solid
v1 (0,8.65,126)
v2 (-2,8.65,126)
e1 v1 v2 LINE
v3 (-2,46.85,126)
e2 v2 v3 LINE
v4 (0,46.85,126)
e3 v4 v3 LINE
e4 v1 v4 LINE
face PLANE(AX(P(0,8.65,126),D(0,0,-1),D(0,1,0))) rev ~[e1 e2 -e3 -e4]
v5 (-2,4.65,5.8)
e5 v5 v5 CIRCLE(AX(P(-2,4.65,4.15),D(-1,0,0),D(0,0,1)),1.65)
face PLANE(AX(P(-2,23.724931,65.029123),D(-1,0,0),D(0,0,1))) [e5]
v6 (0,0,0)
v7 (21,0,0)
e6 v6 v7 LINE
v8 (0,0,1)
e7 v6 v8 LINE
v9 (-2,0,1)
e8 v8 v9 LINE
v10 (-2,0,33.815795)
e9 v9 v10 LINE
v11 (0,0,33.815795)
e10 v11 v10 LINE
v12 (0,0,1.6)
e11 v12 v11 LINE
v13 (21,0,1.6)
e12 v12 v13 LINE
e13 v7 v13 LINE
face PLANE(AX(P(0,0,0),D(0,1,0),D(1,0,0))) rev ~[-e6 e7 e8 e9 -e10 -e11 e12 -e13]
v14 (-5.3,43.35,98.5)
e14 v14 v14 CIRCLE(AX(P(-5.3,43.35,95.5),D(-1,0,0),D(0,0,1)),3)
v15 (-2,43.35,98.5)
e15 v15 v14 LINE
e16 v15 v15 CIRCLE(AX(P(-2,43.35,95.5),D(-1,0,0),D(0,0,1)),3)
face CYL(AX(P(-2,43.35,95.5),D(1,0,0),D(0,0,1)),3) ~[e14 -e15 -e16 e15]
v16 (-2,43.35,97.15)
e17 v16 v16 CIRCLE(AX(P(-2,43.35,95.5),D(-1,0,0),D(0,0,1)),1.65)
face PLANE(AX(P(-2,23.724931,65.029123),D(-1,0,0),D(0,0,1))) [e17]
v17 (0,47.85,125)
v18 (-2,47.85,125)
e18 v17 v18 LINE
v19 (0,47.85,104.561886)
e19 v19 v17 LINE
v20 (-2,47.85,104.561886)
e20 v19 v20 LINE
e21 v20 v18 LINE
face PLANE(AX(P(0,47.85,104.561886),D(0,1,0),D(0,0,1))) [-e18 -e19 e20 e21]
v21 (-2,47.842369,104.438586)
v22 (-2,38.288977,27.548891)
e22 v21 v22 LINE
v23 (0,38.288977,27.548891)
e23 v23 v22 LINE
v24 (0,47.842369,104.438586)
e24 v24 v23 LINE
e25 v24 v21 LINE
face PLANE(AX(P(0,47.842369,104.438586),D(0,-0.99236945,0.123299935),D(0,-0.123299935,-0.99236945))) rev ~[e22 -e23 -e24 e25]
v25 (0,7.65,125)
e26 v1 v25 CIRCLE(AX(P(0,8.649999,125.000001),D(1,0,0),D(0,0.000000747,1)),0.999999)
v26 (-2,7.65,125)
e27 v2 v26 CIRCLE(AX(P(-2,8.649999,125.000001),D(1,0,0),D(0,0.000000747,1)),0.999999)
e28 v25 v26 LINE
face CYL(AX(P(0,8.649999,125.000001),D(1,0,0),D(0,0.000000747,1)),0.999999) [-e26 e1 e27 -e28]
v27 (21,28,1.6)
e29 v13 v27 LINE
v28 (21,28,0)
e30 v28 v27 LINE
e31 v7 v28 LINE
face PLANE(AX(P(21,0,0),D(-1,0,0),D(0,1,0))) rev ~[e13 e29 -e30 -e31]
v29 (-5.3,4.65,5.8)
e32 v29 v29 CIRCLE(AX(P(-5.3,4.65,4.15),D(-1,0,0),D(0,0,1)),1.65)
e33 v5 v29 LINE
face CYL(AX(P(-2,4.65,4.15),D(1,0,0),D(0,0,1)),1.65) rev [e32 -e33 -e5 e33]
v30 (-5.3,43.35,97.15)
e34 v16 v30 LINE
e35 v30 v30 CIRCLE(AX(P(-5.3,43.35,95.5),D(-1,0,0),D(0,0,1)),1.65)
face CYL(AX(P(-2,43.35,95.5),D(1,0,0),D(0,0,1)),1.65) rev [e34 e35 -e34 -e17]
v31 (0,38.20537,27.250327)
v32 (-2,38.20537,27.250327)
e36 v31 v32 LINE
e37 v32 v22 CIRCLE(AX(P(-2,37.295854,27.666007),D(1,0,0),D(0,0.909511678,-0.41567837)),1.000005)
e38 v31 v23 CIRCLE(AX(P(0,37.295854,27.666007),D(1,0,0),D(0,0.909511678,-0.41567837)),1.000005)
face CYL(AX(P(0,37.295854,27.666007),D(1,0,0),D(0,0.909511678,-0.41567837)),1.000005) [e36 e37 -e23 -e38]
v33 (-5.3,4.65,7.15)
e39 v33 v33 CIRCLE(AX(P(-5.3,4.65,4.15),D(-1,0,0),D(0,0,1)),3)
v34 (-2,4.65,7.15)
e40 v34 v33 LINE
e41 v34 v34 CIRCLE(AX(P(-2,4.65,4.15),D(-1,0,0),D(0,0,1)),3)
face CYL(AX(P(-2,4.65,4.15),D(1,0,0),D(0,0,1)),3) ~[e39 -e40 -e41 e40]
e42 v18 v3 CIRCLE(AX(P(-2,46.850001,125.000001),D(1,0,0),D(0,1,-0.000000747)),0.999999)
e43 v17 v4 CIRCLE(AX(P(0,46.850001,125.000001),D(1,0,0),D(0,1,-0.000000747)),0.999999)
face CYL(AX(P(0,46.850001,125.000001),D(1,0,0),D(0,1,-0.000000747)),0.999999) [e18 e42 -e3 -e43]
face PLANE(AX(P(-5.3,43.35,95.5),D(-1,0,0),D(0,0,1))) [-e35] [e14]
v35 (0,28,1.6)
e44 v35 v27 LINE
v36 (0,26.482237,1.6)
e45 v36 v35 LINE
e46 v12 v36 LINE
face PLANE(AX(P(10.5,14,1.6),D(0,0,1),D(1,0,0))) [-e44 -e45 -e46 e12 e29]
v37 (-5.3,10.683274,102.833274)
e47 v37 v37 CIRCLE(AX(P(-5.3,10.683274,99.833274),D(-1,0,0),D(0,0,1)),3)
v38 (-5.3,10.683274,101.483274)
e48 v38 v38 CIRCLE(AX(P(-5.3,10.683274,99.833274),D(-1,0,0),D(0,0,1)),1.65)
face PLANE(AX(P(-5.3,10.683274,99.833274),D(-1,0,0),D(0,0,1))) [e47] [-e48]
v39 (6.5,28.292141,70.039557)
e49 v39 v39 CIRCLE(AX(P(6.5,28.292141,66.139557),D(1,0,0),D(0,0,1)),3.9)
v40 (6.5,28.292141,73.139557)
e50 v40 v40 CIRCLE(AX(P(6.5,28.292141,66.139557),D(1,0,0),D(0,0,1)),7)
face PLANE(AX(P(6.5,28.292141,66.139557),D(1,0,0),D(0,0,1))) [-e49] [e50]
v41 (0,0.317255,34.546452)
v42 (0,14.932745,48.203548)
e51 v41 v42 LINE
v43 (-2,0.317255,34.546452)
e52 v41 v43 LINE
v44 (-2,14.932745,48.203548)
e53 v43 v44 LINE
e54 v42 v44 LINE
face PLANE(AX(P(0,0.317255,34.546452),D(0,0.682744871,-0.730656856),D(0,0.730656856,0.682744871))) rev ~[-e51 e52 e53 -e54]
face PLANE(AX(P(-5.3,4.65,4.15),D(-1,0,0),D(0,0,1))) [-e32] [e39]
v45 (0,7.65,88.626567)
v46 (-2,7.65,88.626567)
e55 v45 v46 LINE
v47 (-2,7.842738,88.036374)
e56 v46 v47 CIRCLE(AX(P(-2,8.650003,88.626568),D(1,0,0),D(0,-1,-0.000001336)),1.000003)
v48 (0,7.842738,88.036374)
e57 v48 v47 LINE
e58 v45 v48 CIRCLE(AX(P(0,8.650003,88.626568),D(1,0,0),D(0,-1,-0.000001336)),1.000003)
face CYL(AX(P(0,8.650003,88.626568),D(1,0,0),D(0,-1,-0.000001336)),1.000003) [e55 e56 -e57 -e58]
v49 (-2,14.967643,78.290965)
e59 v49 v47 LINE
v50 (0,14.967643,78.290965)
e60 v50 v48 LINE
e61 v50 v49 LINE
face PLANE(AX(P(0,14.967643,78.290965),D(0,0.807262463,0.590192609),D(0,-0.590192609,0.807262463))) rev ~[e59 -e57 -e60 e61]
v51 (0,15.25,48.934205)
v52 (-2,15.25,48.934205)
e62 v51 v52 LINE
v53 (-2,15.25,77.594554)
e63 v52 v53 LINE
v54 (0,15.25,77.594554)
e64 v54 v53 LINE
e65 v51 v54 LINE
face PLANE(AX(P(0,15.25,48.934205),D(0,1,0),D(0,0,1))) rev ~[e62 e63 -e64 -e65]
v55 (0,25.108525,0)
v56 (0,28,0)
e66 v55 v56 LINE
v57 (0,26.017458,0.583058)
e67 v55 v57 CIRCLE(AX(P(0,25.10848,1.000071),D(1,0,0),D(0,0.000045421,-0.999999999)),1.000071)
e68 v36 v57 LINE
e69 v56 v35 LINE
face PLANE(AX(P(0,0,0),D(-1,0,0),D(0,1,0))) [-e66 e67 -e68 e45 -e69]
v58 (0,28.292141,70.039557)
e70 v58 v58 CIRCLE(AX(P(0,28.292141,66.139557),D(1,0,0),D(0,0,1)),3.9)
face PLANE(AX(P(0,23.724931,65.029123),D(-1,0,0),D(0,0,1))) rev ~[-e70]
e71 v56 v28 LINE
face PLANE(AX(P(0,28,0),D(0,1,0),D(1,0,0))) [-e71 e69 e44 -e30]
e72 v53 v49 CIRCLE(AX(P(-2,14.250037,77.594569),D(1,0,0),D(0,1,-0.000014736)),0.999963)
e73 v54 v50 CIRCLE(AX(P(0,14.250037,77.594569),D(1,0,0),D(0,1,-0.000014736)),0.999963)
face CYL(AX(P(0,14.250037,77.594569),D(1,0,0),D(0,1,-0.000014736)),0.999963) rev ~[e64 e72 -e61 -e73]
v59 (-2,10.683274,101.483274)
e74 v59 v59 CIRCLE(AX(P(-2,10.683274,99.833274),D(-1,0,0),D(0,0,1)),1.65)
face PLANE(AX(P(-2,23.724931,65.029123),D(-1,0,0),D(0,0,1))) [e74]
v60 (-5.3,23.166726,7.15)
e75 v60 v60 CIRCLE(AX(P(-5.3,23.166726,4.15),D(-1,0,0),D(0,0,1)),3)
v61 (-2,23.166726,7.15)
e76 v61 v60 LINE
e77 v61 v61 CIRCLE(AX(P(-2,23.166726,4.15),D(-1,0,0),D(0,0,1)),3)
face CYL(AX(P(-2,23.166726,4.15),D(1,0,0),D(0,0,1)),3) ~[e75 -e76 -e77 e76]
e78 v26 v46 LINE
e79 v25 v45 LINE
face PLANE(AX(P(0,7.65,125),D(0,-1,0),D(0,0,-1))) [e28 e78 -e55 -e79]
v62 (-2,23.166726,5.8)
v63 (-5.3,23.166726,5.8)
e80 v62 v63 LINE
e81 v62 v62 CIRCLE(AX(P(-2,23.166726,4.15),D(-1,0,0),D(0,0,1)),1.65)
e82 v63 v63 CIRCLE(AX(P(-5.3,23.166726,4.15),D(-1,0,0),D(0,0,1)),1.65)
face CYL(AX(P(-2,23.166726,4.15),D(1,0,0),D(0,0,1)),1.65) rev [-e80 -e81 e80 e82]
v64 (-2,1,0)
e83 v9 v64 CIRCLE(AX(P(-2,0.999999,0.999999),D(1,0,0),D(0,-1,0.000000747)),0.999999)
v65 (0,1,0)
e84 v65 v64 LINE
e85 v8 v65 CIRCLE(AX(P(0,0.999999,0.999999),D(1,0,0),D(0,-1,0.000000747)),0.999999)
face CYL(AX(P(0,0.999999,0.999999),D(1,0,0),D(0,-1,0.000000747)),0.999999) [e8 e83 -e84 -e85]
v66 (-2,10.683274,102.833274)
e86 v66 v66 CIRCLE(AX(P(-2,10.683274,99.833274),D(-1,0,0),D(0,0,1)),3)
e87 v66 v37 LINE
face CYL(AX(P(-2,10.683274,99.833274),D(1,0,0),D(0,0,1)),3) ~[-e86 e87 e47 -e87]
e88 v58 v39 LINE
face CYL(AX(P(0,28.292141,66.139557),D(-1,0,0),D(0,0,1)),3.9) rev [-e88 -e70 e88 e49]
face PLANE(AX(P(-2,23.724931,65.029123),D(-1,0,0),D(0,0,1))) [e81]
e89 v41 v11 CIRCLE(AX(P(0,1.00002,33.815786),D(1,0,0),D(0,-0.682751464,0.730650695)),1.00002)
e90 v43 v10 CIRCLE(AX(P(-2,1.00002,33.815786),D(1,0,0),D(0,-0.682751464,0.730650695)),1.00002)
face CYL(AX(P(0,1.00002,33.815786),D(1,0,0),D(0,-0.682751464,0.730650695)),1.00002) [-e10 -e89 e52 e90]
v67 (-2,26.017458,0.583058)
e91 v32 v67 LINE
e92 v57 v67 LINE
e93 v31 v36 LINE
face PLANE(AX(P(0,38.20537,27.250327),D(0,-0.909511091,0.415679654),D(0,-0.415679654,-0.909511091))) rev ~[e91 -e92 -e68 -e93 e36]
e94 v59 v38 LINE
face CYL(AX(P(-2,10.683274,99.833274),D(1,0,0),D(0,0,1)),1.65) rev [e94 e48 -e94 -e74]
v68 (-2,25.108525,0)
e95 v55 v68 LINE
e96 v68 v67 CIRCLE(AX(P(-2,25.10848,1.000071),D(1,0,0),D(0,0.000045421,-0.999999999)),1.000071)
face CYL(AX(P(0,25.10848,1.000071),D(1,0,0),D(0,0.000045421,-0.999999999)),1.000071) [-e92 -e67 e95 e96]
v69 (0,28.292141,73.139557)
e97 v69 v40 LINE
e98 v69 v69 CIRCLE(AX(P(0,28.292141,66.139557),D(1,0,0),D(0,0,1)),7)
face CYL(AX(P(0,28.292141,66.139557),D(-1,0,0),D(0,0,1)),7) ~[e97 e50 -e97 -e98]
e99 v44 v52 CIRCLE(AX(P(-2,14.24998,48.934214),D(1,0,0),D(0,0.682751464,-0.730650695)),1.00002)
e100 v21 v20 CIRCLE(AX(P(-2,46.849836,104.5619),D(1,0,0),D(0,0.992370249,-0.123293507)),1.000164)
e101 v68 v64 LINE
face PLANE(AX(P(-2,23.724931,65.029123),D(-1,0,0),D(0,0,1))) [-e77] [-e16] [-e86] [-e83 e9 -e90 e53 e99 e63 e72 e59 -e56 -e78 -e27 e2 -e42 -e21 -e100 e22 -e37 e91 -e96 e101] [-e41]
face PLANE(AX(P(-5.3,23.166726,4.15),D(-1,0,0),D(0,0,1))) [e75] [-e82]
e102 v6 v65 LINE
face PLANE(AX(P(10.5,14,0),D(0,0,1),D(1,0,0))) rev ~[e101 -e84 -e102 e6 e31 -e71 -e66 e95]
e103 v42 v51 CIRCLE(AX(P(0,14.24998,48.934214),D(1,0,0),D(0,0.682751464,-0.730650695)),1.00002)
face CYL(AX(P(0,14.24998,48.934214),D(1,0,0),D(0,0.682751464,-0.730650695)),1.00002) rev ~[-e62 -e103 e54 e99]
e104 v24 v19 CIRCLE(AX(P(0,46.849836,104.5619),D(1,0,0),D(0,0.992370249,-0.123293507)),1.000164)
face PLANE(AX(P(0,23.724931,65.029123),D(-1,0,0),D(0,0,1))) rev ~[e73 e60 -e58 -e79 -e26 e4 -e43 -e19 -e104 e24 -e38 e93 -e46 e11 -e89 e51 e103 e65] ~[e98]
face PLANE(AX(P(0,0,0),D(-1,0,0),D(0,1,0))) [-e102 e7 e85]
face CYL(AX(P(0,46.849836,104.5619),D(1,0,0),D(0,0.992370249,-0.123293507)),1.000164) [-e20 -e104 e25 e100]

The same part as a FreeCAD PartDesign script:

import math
import FreeCAD as App
import Part
import Sketcher
Q = App.Units.Quantity

doc = App.newDocument("Part")
params = doc.addObject("Spreadsheet::Sheet", "Params")
for row, (alias, value) in enumerate([
    ("sketch1_radius", "0.999999 mm"),
    ("sketch1_width", "38.2 mm"),
    ("pad1_length", "2 mm"),
    ("sketch2_diameter", "6 mm"),
    ("sketch2_diameter2", "3.3 mm"),
    ("pad2_length", "3.3 mm"),
    ("sketch3_width", "21 mm"),
    ("sketch3_height", "28 mm"),
    ("pad3_length", "1.6 mm"),
    ("sketch4_diameter", "14 mm"),
    ("sketch4_diameter2", "7.8 mm"),
    ("pad4_length", "6.5 mm"),
], start=1):
    params.set(f"A{row}", alias)
    params.set(f"B{row}", "=" + value)
    params.setAlias(f"B{row}", alias)

body = doc.addObject("PartDesign::Body", "Body")

# Sketch on YZ plane
sketch1 = body.newObject("Sketcher::SketchObject", "Sketch")
sketch1.AttachmentSupport = (doc.getObject("YZ_Plane"), [""])
sketch1.MapMode = "FlatFace"
sketch1.addGeometry(Part.LineSegment(App.Vector(15.25, 48.93, 0), App.Vector(15.25, 77.59, 0)), False)
sketch1.addGeometry(Part.ArcOfCircle(Part.Circle(App.Vector(14.25, 77.59, 0), App.Vector(0, 0, 1), 1), math.radians(0), math.radians(44)), False)
sketch1.addGeometry(Part.LineSegment(App.Vector(14.97, 78.29, 0), App.Vector(7.84, 88.04, 0)), False)
sketch1.addGeometry(Part.ArcOfCircle(Part.Circle(App.Vector(8.65, 88.63, 0), App.Vector(0, 0, 1), 1), math.radians(-180), math.radians(-144)), False)
sketch1.addGeometry(Part.LineSegment(App.Vector(7.65, 88.63, 0), App.Vector(7.65, 125, 0)), False)
sketch1.addGeometry(Part.ArcOfCircle(Part.Circle(App.Vector(8.65, 125, 0), App.Vector(0, 0, 1), 1), math.radians(90), math.radians(180)), False)
sketch1.addGeometry(Part.LineSegment(App.Vector(8.65, 126, 0), App.Vector(46.85, 126, 0)), False)
sketch1.addGeometry(Part.ArcOfCircle(Part.Circle(App.Vector(46.85, 125, 0), App.Vector(0, 0, 1), 1), math.radians(0), math.radians(90)), False)
sketch1.addGeometry(Part.LineSegment(App.Vector(47.85, 125, 0), App.Vector(47.85, 104.56, 0)), False)
sketch1.addGeometry(Part.ArcOfCircle(Part.Circle(App.Vector(46.85, 104.56, 0), App.Vector(0, 0, 1), 1), math.radians(-7.08), math.radians(0)), False)
sketch1.addGeometry(Part.LineSegment(App.Vector(47.84, 104.44, 0), App.Vector(38.29, 27.55, 0)), False)
sketch1.addGeometry(Part.ArcOfCircle(Part.Circle(App.Vector(37.3, 27.67, 0), App.Vector(0, 0, 1), 1), math.radians(-24.56), math.radians(-6.73)), False)
sketch1.addGeometry(Part.LineSegment(App.Vector(38.21, 27.25, 0), App.Vector(26.02, 0.58, 0)), False)
sketch1.addGeometry(Part.ArcOfCircle(Part.Circle(App.Vector(25.11, 1, 0), App.Vector(0, 0, 1), 1), math.radians(-90), math.radians(-25)), False)
sketch1.addGeometry(Part.LineSegment(App.Vector(25.11, 0, 0), App.Vector(1, 0, 0)), False)
sketch1.addGeometry(Part.ArcOfCircle(Part.Circle(App.Vector(1, 1, 0), App.Vector(0, 0, 1), 1), math.radians(180), math.radians(270)), False)
sketch1.addGeometry(Part.LineSegment(App.Vector(0, 1, 0), App.Vector(0, 33.82, 0)), False)
sketch1.addGeometry(Part.ArcOfCircle(Part.Circle(App.Vector(1, 33.82, 0), App.Vector(0, 0, 1), 1), math.radians(133), math.radians(180)), False)
sketch1.addGeometry(Part.LineSegment(App.Vector(0.32, 34.55, 0), App.Vector(14.93, 48.2, 0)), False)
sketch1.addGeometry(Part.ArcOfCircle(Part.Circle(App.Vector(14.25, 48.93, 0), App.Vector(0, 0, 1), 1), math.radians(-47), math.radians(0)), False)
sketch1.addConstraint(Sketcher.Constraint("Coincident", 0, 2, 1, 1))
sketch1.addConstraint(Sketcher.Constraint("Coincident", 1, 2, 2, 1))
sketch1.addConstraint(Sketcher.Constraint("Tangent", 2, 2, 3, 2))
sketch1.addConstraint(Sketcher.Constraint("Tangent", 3, 1, 4, 1))
sketch1.addConstraint(Sketcher.Constraint("Tangent", 4, 2, 5, 2))
sketch1.addConstraint(Sketcher.Constraint("Tangent", 5, 1, 6, 1))
sketch1.addConstraint(Sketcher.Constraint("Tangent", 6, 2, 7, 2))
sketch1.addConstraint(Sketcher.Constraint("Tangent", 7, 1, 8, 1))
sketch1.addConstraint(Sketcher.Constraint("Coincident", 8, 2, 9, 2))
sketch1.addConstraint(Sketcher.Constraint("Coincident", 9, 1, 10, 1))
sketch1.addConstraint(Sketcher.Constraint("Coincident", 10, 2, 11, 2))
sketch1.addConstraint(Sketcher.Constraint("Tangent", 11, 1, 12, 1))
sketch1.addConstraint(Sketcher.Constraint("Coincident", 12, 2, 13, 2))
sketch1.addConstraint(Sketcher.Constraint("Coincident", 13, 1, 14, 1))
sketch1.addConstraint(Sketcher.Constraint("Tangent", 14, 2, 15, 2))
sketch1.addConstraint(Sketcher.Constraint("Tangent", 15, 1, 16, 1))
sketch1.addConstraint(Sketcher.Constraint("Coincident", 16, 2, 17, 2))
sketch1.addConstraint(Sketcher.Constraint("Coincident", 17, 1, 18, 1))
sketch1.addConstraint(Sketcher.Constraint("Coincident", 18, 2, 19, 1))
sketch1.addConstraint(Sketcher.Constraint("Coincident", 19, 2, 0, 1))
sketch1.addConstraint(Sketcher.Constraint("Vertical", 0))
sketch1.addConstraint(Sketcher.Constraint("Vertical", 4))
sketch1.addConstraint(Sketcher.Constraint("Horizontal", 6))
sketch1.addConstraint(Sketcher.Constraint("Vertical", 8))
sketch1.addConstraint(Sketcher.Constraint("Horizontal", 14))
sketch1.addConstraint(Sketcher.Constraint("Vertical", 16))
sketch1.addConstraint(Sketcher.Constraint("Equal", 5, 7))
sketch1.addConstraint(Sketcher.Constraint("Equal", 3, 11))
sketch1.addConstraint(Sketcher.Constraint("Equal", 7, 15))
sketch1.addConstraint(Sketcher.Constraint("Equal", 17, 19))
sketch1.addConstraint(Sketcher.Constraint("PointOnObject", 13, 1, -1))
sketch1.addConstraint(Sketcher.Constraint("PointOnObject", 15, 1, -2))
sketch1.addConstraint(Sketcher.Constraint("Radius", 5, Q("0.999999 mm")))
sketch1.addConstraint(Sketcher.Constraint("DistanceX", 6, 1, 6, 2, Q("38.2 mm")))
sketch1.addConstraint(Sketcher.Constraint("DistanceY", -1, 1, 5, 3, Q("125.000001 mm")))
sketch1.addConstraint(Sketcher.Constraint("DistanceX", 3, 1, 0, 2, Q("7.6 mm")))
sketch1.addConstraint(Sketcher.Constraint("DistanceX", -1, 1, 5, 3, Q("8.649999 mm")))
sketch1.addConstraint(Sketcher.Constraint("Radius", 13, Q("1.000071 mm")))
sketch1.addConstraint(Sketcher.Constraint("Radius", 17, Q("1.00002 mm")))
sketch1.addConstraint(Sketcher.Constraint("Radius", 1, Q("0.999963 mm")))
sketch1.addConstraint(Sketcher.Constraint("Radius", 3, Q("1.000003 mm")))
sketch1.addConstraint(Sketcher.Constraint("Radius", 9, Q("1.000164 mm")))
sketch1.addConstraint(Sketcher.Constraint("DistanceY", 1, 3, 3, 3, Q("11.032 mm")))
sketch1.addConstraint(Sketcher.Constraint("DistanceY", 0, 1, 0, 2, Q("28.660349 mm")))
sketch1.addConstraint(Sketcher.Constraint("DistanceY", -1, 1, 9, 3, Q("104.5619 mm")))
sketch1.addConstraint(Sketcher.Constraint("DistanceY", 13, 3, 1, 3, Q("76.594498 mm")))
sketch1.addConstraint(Sketcher.Constraint("DistanceX", 19, 3, 13, 3, Q("10.8585 mm")))
sketch1.addConstraint(Sketcher.Constraint("DistanceX", 2, 2, 1, 3, Q("6.407299 mm")))
sketch1.addConstraint(Sketcher.Constraint("DistanceY", 9, 1, 8, 2, Q("0.1233 mm")))
sketch1.addConstraint(Sketcher.Constraint("Distance", 18, Q("20.00322 mm")))
sketch1.addConstraint(Sketcher.Constraint("DistanceX", 14, 2, 14, 1, Q("24.108525 mm")))
sketch1.addConstraint(Sketcher.Constraint("DistanceY", 8, 2, 8, 1, Q("20.438114 mm")))
sketch1.addConstraint(Sketcher.Constraint("DistanceY", 16, 1, 16, 2, Q("32.815795 mm")))
sketch1.addConstraint(Sketcher.Constraint("DistanceY", -1, 1, 10, 2, Q("27.548891 mm")))
sketch1.addConstraint(Sketcher.Constraint("DistanceX", -1, 1, 11, 1, Q("38.20537 mm")))
sketch1.addConstraint(Sketcher.Constraint("DistanceX", -1, 1, 12, 2, Q("26.017458 mm")))
sketch1.addConstraint(Sketcher.Constraint("DistanceY", -1, 1, 17, 1, Q("34.546452 mm")))
sketch1.addConstraint(Sketcher.Constraint("DistanceY", 11, 3, 1, 3, Q("49.928561 mm")))
sketch1.addConstraint(Sketcher.Constraint("DistanceY", 11, 3, 17, 3, Q("6.149779 mm")))
sketch1.addConstraint(Sketcher.Constraint("DistanceY", 19, 3, 0, 2, Q("28.66034 mm")))
sketch1.addConstraint(Sketcher.Constraint("DistanceY", 0, 2, 1, 2, Q("0.696411 mm")))
sketch1.setExpression("Constraints[32]", "Params.sketch1_radius")
sketch1.setExpression("Constraints[33]", "Params.sketch1_width")
pad1 = body.newObject("PartDesign::Pad", "Pad")
pad1.Profile = sketch1
pad1.setExpression("Length", "Params.pad1_length")
pad1.Reversed = True

# Sketch on YZ plane
sketch2 = body.newObject("Sketcher::SketchObject", "Sketch001")
sketch2.AttachmentSupport = (doc.getObject("YZ_Plane"), [""])
sketch2.MapMode = "FlatFace"
sketch2.AttachmentOffset = App.Placement(App.Vector(0, 0, -2), App.Rotation())
sketch2.addGeometry(Part.Circle(App.Vector(23.2, 4.2, 0), App.Vector(0, 0, 1), 3), False)
sketch2.addGeometry(Part.Circle(App.Vector(23.2, 4.2, 0), App.Vector(0, 0, 1), 1.6), False)
sketch2.addGeometry(Part.Circle(App.Vector(4.7, 4.2, 0), App.Vector(0, 0, 1), 3), False)
sketch2.addGeometry(Part.Circle(App.Vector(4.7, 4.2, 0), App.Vector(0, 0, 1), 1.6), False)
sketch2.addGeometry(Part.Circle(App.Vector(43.4, 95.5, 0), App.Vector(0, 0, 1), 3), False)
sketch2.addGeometry(Part.Circle(App.Vector(43.4, 95.5, 0), App.Vector(0, 0, 1), 1.6), False)
sketch2.addGeometry(Part.Circle(App.Vector(10.7, 99.8, 0), App.Vector(0, 0, 1), 3), False)
sketch2.addGeometry(Part.Circle(App.Vector(10.7, 99.8, 0), App.Vector(0, 0, 1), 1.6), False)
sketch2.addConstraint(Sketcher.Constraint("Coincident", 1, 3, 0, 3))
sketch2.addConstraint(Sketcher.Constraint("Coincident", 3, 3, 2, 3))
sketch2.addConstraint(Sketcher.Constraint("Coincident", 5, 3, 4, 3))
sketch2.addConstraint(Sketcher.Constraint("Coincident", 7, 3, 6, 3))
sketch2.addConstraint(Sketcher.Constraint("Equal", 0, 2))
sketch2.addConstraint(Sketcher.Constraint("Equal", 1, 3))
sketch2.addConstraint(Sketcher.Constraint("Equal", 2, 4))
sketch2.addConstraint(Sketcher.Constraint("Equal", 3, 5))
sketch2.addConstraint(Sketcher.Constraint("Equal", 4, 6))
sketch2.addConstraint(Sketcher.Constraint("Equal", 5, 7))
sketch2.addConstraint(Sketcher.Constraint("Horizontal", 1, 3, 2, 3))
sketch2.addConstraint(Sketcher.Constraint("Diameter", 0, Q("6 mm")))
sketch2.addConstraint(Sketcher.Constraint("Diameter", 1, Q("3.3 mm")))
sketch2.addConstraint(Sketcher.Constraint("DistanceY", -1, 1, 4, 3, Q("95.5 mm")))
sketch2.addConstraint(Sketcher.Constraint("DistanceX", 2, 3, 4, 3, Q("38.7 mm")))
sketch2.addConstraint(Sketcher.Constraint("DistanceY", -1, 1, 0, 3, Q("4.15 mm")))
sketch2.addConstraint(Sketcher.Constraint("DistanceX", -1, 1, 2, 3, Q("4.65 mm")))
sketch2.addConstraint(Sketcher.Constraint("DistanceX", -1, 1, 0, 3, Q("23.166726 mm")))
sketch2.addConstraint(Sketcher.Constraint("DistanceX", -1, 1, 6, 3, Q("10.683274 mm")))
sketch2.addConstraint(Sketcher.Constraint("DistanceY", -1, 1, 6, 3, Q("99.833274 mm")))
sketch2.setExpression("Constraints[11]", "Params.sketch2_diameter")
sketch2.setExpression("Constraints[12]", "Params.sketch2_diameter2")
pad2 = body.newObject("PartDesign::Pad", "Pad001")
pad2.Profile = sketch2
pad2.setExpression("Length", "Params.pad2_length")
pad2.Reversed = True

# Sketch on XY plane
sketch3 = body.newObject("Sketcher::SketchObject", "Sketch002")
sketch3.AttachmentSupport = (doc.getObject("XY_Plane"), [""])
sketch3.MapMode = "FlatFace"
sketch3.addGeometry(Part.LineSegment(App.Vector(0, 28, 0), App.Vector(0, 0, 0)), False)
sketch3.addGeometry(Part.LineSegment(App.Vector(0, 0, 0), App.Vector(21, 0, 0)), False)
sketch3.addGeometry(Part.LineSegment(App.Vector(21, 0, 0), App.Vector(21, 28, 0)), False)
sketch3.addGeometry(Part.LineSegment(App.Vector(21, 28, 0), App.Vector(0, 28, 0)), False)
sketch3.addConstraint(Sketcher.Constraint("Coincident", 0, 2, 1, 1))
sketch3.addConstraint(Sketcher.Constraint("Coincident", 1, 2, 2, 1))
sketch3.addConstraint(Sketcher.Constraint("Coincident", 2, 2, 3, 1))
sketch3.addConstraint(Sketcher.Constraint("Coincident", 3, 2, 0, 1))
sketch3.addConstraint(Sketcher.Constraint("Vertical", 0))
sketch3.addConstraint(Sketcher.Constraint("Horizontal", 1))
sketch3.addConstraint(Sketcher.Constraint("Vertical", 2))
sketch3.addConstraint(Sketcher.Constraint("Horizontal", 3))
sketch3.addConstraint(Sketcher.Constraint("Coincident", 0, 2, -1, 1))
sketch3.addConstraint(Sketcher.Constraint("DistanceX", 1, 1, 1, 2, Q("21 mm")))
sketch3.addConstraint(Sketcher.Constraint("DistanceY", 0, 2, 0, 1, Q("28 mm")))
sketch3.setExpression("Constraints[9]", "Params.sketch3_width")
sketch3.setExpression("Constraints[10]", "Params.sketch3_height")
pad3 = body.newObject("PartDesign::Pad", "Pad002")
pad3.Profile = sketch3
pad3.setExpression("Length", "Params.pad3_length")

# Sketch on YZ plane
sketch4 = body.newObject("Sketcher::SketchObject", "Sketch003")
sketch4.AttachmentSupport = (doc.getObject("YZ_Plane"), [""])
sketch4.MapMode = "FlatFace"
sketch4.addGeometry(Part.Circle(App.Vector(28.3, 66.1, 0), App.Vector(0, 0, 1), 7), False)
sketch4.addGeometry(Part.Circle(App.Vector(28.3, 66.1, 0), App.Vector(0, 0, 1), 3.9), False)
sketch4.addConstraint(Sketcher.Constraint("Coincident", 1, 3, 0, 3))
sketch4.addConstraint(Sketcher.Constraint("Diameter", 0, Q("14 mm")))
sketch4.addConstraint(Sketcher.Constraint("Diameter", 1, Q("7.8 mm")))
sketch4.addConstraint(Sketcher.Constraint("DistanceX", -1, 1, 0, 3, Q("28.292141 mm")))
sketch4.addConstraint(Sketcher.Constraint("DistanceY", -1, 1, 0, 3, Q("66.139557 mm")))
sketch4.setExpression("Constraints[1]", "Params.sketch4_diameter")
sketch4.setExpression("Constraints[2]", "Params.sketch4_diameter2")
pad4 = body.newObject("PartDesign::Pad", "Pad003")
pad4.Profile = sketch4
pad4.setExpression("Length", "Params.pad4_length")

doc.recompute()
